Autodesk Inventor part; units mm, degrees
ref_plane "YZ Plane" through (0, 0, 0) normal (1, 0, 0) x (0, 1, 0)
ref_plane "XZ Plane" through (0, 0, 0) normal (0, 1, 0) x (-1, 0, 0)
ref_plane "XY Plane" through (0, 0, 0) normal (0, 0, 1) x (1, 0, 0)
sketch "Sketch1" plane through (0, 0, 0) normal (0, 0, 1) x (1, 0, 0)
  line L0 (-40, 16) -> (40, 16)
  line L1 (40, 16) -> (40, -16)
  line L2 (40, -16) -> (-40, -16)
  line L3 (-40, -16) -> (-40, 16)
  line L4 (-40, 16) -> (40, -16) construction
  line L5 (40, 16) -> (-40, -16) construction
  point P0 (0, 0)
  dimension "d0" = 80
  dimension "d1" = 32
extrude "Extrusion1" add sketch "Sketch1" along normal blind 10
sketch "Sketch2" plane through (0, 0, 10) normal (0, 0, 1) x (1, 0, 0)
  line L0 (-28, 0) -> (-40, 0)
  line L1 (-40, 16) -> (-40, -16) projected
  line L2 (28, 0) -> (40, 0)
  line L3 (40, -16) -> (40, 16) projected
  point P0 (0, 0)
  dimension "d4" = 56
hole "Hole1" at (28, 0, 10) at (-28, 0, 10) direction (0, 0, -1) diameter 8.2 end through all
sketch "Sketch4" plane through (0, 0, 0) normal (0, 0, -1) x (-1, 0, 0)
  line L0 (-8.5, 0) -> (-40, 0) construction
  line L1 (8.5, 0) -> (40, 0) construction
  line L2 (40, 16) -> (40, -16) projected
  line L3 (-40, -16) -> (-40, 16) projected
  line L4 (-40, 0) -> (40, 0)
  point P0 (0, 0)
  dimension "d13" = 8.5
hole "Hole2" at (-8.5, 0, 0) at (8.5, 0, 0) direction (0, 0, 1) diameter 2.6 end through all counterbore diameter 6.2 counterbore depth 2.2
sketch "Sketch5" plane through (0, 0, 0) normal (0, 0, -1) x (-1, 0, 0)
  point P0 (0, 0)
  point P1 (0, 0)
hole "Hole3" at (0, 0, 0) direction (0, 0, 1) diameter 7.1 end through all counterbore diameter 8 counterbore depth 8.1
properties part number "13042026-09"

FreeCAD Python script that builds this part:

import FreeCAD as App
import Part
import Sketcher
from FreeCAD import Vector
Q = App.Units.Quantity


def add_polygon(sketch, points):
    """Adds a closed chain of lines whose ends are joined by coincident constraints."""
    first, n = sketch.GeometryCount, len(points)
    for a, b in zip(points, points[1:] + points[:1]):
        sketch.addGeometry(Part.LineSegment(App.Vector(*a, 0), App.Vector(*b, 0)), False)
    for i in range(n):
        sketch.addConstraint(Sketcher.Constraint("Coincident", first + i, 2, first + (i + 1) % n, 1))

doc = App.newDocument("Part")
body = doc.addObject("PartDesign::Body", "Body")

# Sketch on XY plane
sketch1 = body.newObject("Sketcher::SketchObject", "Sketch")
sketch1.AttachmentSupport = (doc.getObject("XY_Plane"), [""])
sketch1.MapMode = "FlatFace"
add_polygon(sketch1, [(40, 16), (-40, 16), (-40, -16), (40, -16)])  # lines 0-3
sketch1.addConstraint([
    Sketcher.Constraint("Horizontal", 0),
    Sketcher.Constraint("Vertical", 1),
    Sketcher.Constraint("Horizontal", 2),
    Sketcher.Constraint("Vertical", 3),
    Sketcher.Constraint("Symmetric", 0, 2, 2, 2, -1, 1),
    Sketcher.Constraint("DistanceX", 0, 2, 0, 1, Q("80 mm")),
    Sketcher.Constraint("DistanceY", 1, 2, 1, 1, Q("32 mm")),
])
pad1 = body.newObject("PartDesign::Pad", "Pad")
pad1.Profile = sketch1
pad1.Length = 10

# Sketch on XY plane
sketch2 = body.newObject("Sketcher::SketchObject", "Sketch001")
sketch2.AttachmentSupport = (doc.getObject("XY_Plane"), [""])
sketch2.MapMode = "FlatFace"
sketch2.AttachmentOffset = App.Placement(Vector(0, 0, 10), App.Rotation())
sketch2.addGeometry([
    Part.Circle(Vector(28, 0, 0), Vector(0, 0, 1), 4.1),
    Part.Circle(Vector(-28, 0, 0), Vector(0, 0, 1), 4.1),
], False)
sketch2.addConstraint([
    Sketcher.Constraint("Equal", 0, 1),
    Sketcher.Constraint("Symmetric", 0, 3, 1, 3, -1, 1),
    Sketcher.Constraint("PointOnObject", 0, 3, -1),
    Sketcher.Constraint("Diameter", 0, Q("8.2 mm")),
    Sketcher.Constraint("DistanceX", -1, 1, 0, 3, Q("28 mm")),
])
doc.recompute()
hole = body.newObject("PartDesign::Hole", "Hole")
hole.Profile = sketch2
hole.ThreadType = "None"
hole.Diameter = 8.2
hole.DepthType = "ThroughAll"

# Sketch on XY plane
sketch3 = body.newObject("Sketcher::SketchObject", "Sketch002")
sketch3.AttachmentSupport = (doc.getObject("XY_Plane"), [""])
sketch3.MapMode = "FlatFace"
sketch3.addGeometry([
    Part.Circle(Vector(-8.5, 0, 0), Vector(0, 0, 1), 1.3),
    Part.Circle(Vector(8.5, 0, 0), Vector(0, 0, 1), 1.3),
], False)
sketch3.addConstraint([
    Sketcher.Constraint("Equal", 0, 1),
    Sketcher.Constraint("Symmetric", 0, 3, 1, 3, -1, 1),
    Sketcher.Constraint("PointOnObject", 0, 3, -1),
    Sketcher.Constraint("Diameter", 0, Q("2.6 mm")),
    Sketcher.Constraint("DistanceX", 0, 3, 1, 3, Q("17 mm")),
])
doc.recompute()
hole2 = body.newObject("PartDesign::Hole", "Hole001")
hole2.Profile = sketch3
hole2.ThreadType = "None"
hole2.Diameter = 2.6
hole2.DepthType = "ThroughAll"
hole2.HoleCutType = "Counterbore"
hole2.HoleCutDiameter = 6.2
hole2.HoleCutDepth = 2.2
hole2.Reversed = True

# Sketch on XY plane
sketch4 = body.newObject("Sketcher::SketchObject", "Sketch003")
sketch4.AttachmentSupport = (doc.getObject("XY_Plane"), [""])
sketch4.MapMode = "FlatFace"
sketch4.addGeometry(Part.Circle(Vector(0, 0, 0), Vector(0, 0, 1), 3.5), False)
sketch4.addConstraint([
    Sketcher.Constraint("Coincident", 0, 3, -1, 1),
    Sketcher.Constraint("Diameter", 0, Q("7.1 mm")),
])
doc.recompute()
hole3 = body.newObject("PartDesign::Hole", "Hole002")
hole3.Profile = sketch4
hole3.ThreadType = "None"
hole3.Diameter = 7.1
hole3.DepthType = "ThroughAll"
hole3.HoleCutType = "Counterbore"
hole3.HoleCutDiameter = 8
hole3.HoleCutDepth = 8.1
hole3.Reversed = True

doc.recompute()
